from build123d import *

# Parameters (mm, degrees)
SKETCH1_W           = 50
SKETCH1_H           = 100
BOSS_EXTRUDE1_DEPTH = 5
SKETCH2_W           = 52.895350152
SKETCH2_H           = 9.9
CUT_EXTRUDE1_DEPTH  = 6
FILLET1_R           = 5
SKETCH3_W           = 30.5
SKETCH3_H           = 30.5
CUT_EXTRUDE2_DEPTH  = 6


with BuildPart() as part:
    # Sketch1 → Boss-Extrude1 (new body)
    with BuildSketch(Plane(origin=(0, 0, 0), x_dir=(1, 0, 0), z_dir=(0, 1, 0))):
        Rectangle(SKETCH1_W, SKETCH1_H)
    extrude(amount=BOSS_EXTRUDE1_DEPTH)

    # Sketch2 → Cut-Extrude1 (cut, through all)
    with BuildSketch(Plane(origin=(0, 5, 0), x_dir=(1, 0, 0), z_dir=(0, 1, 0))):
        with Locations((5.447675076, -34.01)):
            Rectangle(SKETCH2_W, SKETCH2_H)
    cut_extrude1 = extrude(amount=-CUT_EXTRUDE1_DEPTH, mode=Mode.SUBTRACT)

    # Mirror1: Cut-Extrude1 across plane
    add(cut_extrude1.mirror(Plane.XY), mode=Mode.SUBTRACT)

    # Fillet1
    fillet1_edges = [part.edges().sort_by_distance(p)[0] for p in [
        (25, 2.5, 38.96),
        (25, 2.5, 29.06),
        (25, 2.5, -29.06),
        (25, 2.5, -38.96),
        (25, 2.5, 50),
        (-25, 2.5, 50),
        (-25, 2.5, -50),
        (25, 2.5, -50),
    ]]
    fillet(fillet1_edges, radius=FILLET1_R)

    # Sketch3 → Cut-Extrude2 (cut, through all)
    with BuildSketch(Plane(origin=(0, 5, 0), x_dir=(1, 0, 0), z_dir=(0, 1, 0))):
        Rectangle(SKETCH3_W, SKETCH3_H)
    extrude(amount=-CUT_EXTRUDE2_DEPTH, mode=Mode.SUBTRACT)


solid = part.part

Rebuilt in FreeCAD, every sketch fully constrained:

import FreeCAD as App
import Part
import Sketcher


def edges_at(feature, points):
    """Names of the edges that pass closest to the given points."""
    edges = feature.Shape.Edges
    near = lambda p: min(range(len(edges)), key=lambda i: edges[i].distToShape(Part.Vertex(*p))[0])
    return sorted({f"Edge{near(p) + 1}" for p in points})

doc = App.newDocument("Part")
params = doc.addObject("Spreadsheet::Sheet", "Params")
for row, (alias, value) in enumerate([
    ("sketch1_width", "50 mm"),
    ("sketch1_height", "100 mm"),
    ("pad1_length", "5 mm"),
    ("sketch2_height", "9.9 mm"),
    ("fillet_radius", "5 mm"),
    ("sketch3_width", "30.5 mm"),
], start=1):
    params.set(f"A{row}", alias)
    params.set(f"B{row}", "=" + value)
    params.setAlias(f"B{row}", alias)

body = doc.addObject("PartDesign::Body", "Body")

sketch1 = doc.addObject("Sketcher::SketchObject", "Sketch")
body.addObject(sketch1)
sketch1.AttachmentSupport = (doc.XZ_Plane, [""])
sketch1.MapMode = "FlatFace"
sketch1.addGeometry([
    Part.LineSegment(App.Vector(-25, -50, 0), App.Vector(-25, 50, 0)),
    Part.LineSegment(App.Vector(-25, 50, 0), App.Vector(25, 50, 0)),
    Part.LineSegment(App.Vector(25, 50, 0), App.Vector(25, -50, 0)),
    Part.LineSegment(App.Vector(25, -50, 0), App.Vector(-25, -50, 0)),
], False)
sketch1.addConstraint([
    Sketcher.Constraint("Coincident", 0, 2, 1, 1),
    Sketcher.Constraint("Coincident", 1, 2, 2, 1),
    Sketcher.Constraint("Coincident", 2, 2, 3, 1),
    Sketcher.Constraint("Coincident", 3, 2, 0, 1),
    Sketcher.Constraint("Vertical", 0),
    Sketcher.Constraint("Horizontal", 1),
    Sketcher.Constraint("Vertical", 2),
    Sketcher.Constraint("Horizontal", 3),
    Sketcher.Constraint("Symmetric", 0, 2, 2, 2, -1, 1),
    Sketcher.Constraint("DistanceX", 1, 1, 1, 2, 50.0),
    Sketcher.Constraint("DistanceY", 0, 1, 0, 2, 100.0),
])
sketch1.setExpression("Constraints[9]", "Params.sketch1_width")
sketch1.setExpression("Constraints[10]", "Params.sketch1_height")
pad1 = doc.addObject("PartDesign::Pad", "Pad")
body.addObject(pad1)
pad1.Profile = sketch1
pad1.setExpression("Length", "Params.pad1_length")
pad1.Reversed = True

sketch2 = doc.addObject("Sketcher::SketchObject", "Sketch001")
body.addObject(sketch2)
sketch2.AttachmentSupport = (doc.XZ_Plane, [""])
sketch2.MapMode = "FlatFace"
sketch2.AttachmentOffset = App.Placement(App.Vector(0, 0, -5), App.Rotation())
sketch2.addGeometry([
    Part.LineSegment(App.Vector(-21, 29.06, 0), App.Vector(-21, 38.96, 0)),
    Part.LineSegment(App.Vector(-21, 38.96, 0), App.Vector(31.89535, 38.96, 0)),
    Part.LineSegment(App.Vector(31.89535, 38.96, 0), App.Vector(31.89535, 29.06, 0)),
    Part.LineSegment(App.Vector(31.89535, 29.06, 0), App.Vector(-21, 29.06, 0)),
], False)
sketch2.addConstraint([
    Sketcher.Constraint("Coincident", 0, 2, 1, 1),
    Sketcher.Constraint("Coincident", 1, 2, 2, 1),
    Sketcher.Constraint("Coincident", 2, 2, 3, 1),
    Sketcher.Constraint("Coincident", 3, 2, 0, 1),
    Sketcher.Constraint("Vertical", 0),
    Sketcher.Constraint("Horizontal", 1),
    Sketcher.Constraint("Vertical", 2),
    Sketcher.Constraint("Horizontal", 3),
    Sketcher.Constraint("DistanceY", 0, 1, 0, 2, 9.9),
    Sketcher.Constraint("DistanceX", 0, 2, -1, 1, 21.0),
    Sketcher.Constraint("DistanceY", -1, 1, 0, 2, 38.96),
    Sketcher.Constraint("DistanceX", 1, 1, 1, 2, 52.89535),
])
sketch2.setExpression("Constraints[8]", "Params.sketch2_height")
pocket1 = doc.addObject("PartDesign::Pocket", "Pocket")
body.addObject(pocket1)
pocket1.Profile = sketch2
pocket1.Type = "ThroughAll"
pocket1.Reversed = True
doc.recompute()

mirrored = doc.addObject("PartDesign::Mirrored", "Mirrored")
body.addObject(mirrored)
mirrored.Originals = [pocket1]
mirrored.MirrorPlane = (doc.XY_Plane, [""])
body.Tip = mirrored
doc.recompute()

fillet = doc.addObject("PartDesign::Fillet", "Fillet")
body.addObject(fillet)
fillet.Base = (mirrored, edges_at(mirrored, [
    (25, 2.5, 38.96),
    (25, 2.5, 29.06),
    (25, 2.5, -29.06),
    (25, 2.5, -38.96),
    (25, 2.5, 50),
    (-25, 2.5, 50),
    (-25, 2.5, -50),
    (25, 2.5, -50),
]))
fillet.setExpression("Radius", "Params.fillet_radius")

sketch3 = doc.addObject("Sketcher::SketchObject", "Sketch002")
body.addObject(sketch3)
sketch3.AttachmentSupport = (doc.XZ_Plane, [""])
sketch3.MapMode = "FlatFace"
sketch3.AttachmentOffset = App.Placement(App.Vector(0, 0, -5), App.Rotation())
sketch3.addGeometry([
    Part.LineSegment(App.Vector(-15.25, -15.25, 0), App.Vector(-15.25, 15.25, 0)),
    Part.LineSegment(App.Vector(-15.25, 15.25, 0), App.Vector(15.25, 15.25, 0)),
    Part.LineSegment(App.Vector(15.25, 15.25, 0), App.Vector(15.25, -15.25, 0)),
    Part.LineSegment(App.Vector(15.25, -15.25, 0), App.Vector(-15.25, -15.25, 0)),
], False)
sketch3.addConstraint([
    Sketcher.Constraint("Coincident", 0, 2, 1, 1),
    Sketcher.Constraint("Coincident", 1, 2, 2, 1),
    Sketcher.Constraint("Coincident", 2, 2, 3, 1),
    Sketcher.Constraint("Coincident", 3, 2, 0, 1),
    Sketcher.Constraint("Vertical", 0),
    Sketcher.Constraint("Horizontal", 1),
    Sketcher.Constraint("Vertical", 2),
    Sketcher.Constraint("Horizontal", 3),
    Sketcher.Constraint("Symmetric", 0, 2, 2, 2, -1, 1),
    Sketcher.Constraint("Equal", 3, 0),
    Sketcher.Constraint("DistanceX", 1, 1, 1, 2, 30.5),
])
sketch3.setExpression("Constraints[10]", "Params.sketch3_width")
pocket2 = doc.addObject("PartDesign::Pocket", "Pocket001")
body.addObject(pocket2)
pocket2.Profile = sketch3
pocket2.Type = "ThroughAll"
pocket2.Reversed = True

doc.recompute()
